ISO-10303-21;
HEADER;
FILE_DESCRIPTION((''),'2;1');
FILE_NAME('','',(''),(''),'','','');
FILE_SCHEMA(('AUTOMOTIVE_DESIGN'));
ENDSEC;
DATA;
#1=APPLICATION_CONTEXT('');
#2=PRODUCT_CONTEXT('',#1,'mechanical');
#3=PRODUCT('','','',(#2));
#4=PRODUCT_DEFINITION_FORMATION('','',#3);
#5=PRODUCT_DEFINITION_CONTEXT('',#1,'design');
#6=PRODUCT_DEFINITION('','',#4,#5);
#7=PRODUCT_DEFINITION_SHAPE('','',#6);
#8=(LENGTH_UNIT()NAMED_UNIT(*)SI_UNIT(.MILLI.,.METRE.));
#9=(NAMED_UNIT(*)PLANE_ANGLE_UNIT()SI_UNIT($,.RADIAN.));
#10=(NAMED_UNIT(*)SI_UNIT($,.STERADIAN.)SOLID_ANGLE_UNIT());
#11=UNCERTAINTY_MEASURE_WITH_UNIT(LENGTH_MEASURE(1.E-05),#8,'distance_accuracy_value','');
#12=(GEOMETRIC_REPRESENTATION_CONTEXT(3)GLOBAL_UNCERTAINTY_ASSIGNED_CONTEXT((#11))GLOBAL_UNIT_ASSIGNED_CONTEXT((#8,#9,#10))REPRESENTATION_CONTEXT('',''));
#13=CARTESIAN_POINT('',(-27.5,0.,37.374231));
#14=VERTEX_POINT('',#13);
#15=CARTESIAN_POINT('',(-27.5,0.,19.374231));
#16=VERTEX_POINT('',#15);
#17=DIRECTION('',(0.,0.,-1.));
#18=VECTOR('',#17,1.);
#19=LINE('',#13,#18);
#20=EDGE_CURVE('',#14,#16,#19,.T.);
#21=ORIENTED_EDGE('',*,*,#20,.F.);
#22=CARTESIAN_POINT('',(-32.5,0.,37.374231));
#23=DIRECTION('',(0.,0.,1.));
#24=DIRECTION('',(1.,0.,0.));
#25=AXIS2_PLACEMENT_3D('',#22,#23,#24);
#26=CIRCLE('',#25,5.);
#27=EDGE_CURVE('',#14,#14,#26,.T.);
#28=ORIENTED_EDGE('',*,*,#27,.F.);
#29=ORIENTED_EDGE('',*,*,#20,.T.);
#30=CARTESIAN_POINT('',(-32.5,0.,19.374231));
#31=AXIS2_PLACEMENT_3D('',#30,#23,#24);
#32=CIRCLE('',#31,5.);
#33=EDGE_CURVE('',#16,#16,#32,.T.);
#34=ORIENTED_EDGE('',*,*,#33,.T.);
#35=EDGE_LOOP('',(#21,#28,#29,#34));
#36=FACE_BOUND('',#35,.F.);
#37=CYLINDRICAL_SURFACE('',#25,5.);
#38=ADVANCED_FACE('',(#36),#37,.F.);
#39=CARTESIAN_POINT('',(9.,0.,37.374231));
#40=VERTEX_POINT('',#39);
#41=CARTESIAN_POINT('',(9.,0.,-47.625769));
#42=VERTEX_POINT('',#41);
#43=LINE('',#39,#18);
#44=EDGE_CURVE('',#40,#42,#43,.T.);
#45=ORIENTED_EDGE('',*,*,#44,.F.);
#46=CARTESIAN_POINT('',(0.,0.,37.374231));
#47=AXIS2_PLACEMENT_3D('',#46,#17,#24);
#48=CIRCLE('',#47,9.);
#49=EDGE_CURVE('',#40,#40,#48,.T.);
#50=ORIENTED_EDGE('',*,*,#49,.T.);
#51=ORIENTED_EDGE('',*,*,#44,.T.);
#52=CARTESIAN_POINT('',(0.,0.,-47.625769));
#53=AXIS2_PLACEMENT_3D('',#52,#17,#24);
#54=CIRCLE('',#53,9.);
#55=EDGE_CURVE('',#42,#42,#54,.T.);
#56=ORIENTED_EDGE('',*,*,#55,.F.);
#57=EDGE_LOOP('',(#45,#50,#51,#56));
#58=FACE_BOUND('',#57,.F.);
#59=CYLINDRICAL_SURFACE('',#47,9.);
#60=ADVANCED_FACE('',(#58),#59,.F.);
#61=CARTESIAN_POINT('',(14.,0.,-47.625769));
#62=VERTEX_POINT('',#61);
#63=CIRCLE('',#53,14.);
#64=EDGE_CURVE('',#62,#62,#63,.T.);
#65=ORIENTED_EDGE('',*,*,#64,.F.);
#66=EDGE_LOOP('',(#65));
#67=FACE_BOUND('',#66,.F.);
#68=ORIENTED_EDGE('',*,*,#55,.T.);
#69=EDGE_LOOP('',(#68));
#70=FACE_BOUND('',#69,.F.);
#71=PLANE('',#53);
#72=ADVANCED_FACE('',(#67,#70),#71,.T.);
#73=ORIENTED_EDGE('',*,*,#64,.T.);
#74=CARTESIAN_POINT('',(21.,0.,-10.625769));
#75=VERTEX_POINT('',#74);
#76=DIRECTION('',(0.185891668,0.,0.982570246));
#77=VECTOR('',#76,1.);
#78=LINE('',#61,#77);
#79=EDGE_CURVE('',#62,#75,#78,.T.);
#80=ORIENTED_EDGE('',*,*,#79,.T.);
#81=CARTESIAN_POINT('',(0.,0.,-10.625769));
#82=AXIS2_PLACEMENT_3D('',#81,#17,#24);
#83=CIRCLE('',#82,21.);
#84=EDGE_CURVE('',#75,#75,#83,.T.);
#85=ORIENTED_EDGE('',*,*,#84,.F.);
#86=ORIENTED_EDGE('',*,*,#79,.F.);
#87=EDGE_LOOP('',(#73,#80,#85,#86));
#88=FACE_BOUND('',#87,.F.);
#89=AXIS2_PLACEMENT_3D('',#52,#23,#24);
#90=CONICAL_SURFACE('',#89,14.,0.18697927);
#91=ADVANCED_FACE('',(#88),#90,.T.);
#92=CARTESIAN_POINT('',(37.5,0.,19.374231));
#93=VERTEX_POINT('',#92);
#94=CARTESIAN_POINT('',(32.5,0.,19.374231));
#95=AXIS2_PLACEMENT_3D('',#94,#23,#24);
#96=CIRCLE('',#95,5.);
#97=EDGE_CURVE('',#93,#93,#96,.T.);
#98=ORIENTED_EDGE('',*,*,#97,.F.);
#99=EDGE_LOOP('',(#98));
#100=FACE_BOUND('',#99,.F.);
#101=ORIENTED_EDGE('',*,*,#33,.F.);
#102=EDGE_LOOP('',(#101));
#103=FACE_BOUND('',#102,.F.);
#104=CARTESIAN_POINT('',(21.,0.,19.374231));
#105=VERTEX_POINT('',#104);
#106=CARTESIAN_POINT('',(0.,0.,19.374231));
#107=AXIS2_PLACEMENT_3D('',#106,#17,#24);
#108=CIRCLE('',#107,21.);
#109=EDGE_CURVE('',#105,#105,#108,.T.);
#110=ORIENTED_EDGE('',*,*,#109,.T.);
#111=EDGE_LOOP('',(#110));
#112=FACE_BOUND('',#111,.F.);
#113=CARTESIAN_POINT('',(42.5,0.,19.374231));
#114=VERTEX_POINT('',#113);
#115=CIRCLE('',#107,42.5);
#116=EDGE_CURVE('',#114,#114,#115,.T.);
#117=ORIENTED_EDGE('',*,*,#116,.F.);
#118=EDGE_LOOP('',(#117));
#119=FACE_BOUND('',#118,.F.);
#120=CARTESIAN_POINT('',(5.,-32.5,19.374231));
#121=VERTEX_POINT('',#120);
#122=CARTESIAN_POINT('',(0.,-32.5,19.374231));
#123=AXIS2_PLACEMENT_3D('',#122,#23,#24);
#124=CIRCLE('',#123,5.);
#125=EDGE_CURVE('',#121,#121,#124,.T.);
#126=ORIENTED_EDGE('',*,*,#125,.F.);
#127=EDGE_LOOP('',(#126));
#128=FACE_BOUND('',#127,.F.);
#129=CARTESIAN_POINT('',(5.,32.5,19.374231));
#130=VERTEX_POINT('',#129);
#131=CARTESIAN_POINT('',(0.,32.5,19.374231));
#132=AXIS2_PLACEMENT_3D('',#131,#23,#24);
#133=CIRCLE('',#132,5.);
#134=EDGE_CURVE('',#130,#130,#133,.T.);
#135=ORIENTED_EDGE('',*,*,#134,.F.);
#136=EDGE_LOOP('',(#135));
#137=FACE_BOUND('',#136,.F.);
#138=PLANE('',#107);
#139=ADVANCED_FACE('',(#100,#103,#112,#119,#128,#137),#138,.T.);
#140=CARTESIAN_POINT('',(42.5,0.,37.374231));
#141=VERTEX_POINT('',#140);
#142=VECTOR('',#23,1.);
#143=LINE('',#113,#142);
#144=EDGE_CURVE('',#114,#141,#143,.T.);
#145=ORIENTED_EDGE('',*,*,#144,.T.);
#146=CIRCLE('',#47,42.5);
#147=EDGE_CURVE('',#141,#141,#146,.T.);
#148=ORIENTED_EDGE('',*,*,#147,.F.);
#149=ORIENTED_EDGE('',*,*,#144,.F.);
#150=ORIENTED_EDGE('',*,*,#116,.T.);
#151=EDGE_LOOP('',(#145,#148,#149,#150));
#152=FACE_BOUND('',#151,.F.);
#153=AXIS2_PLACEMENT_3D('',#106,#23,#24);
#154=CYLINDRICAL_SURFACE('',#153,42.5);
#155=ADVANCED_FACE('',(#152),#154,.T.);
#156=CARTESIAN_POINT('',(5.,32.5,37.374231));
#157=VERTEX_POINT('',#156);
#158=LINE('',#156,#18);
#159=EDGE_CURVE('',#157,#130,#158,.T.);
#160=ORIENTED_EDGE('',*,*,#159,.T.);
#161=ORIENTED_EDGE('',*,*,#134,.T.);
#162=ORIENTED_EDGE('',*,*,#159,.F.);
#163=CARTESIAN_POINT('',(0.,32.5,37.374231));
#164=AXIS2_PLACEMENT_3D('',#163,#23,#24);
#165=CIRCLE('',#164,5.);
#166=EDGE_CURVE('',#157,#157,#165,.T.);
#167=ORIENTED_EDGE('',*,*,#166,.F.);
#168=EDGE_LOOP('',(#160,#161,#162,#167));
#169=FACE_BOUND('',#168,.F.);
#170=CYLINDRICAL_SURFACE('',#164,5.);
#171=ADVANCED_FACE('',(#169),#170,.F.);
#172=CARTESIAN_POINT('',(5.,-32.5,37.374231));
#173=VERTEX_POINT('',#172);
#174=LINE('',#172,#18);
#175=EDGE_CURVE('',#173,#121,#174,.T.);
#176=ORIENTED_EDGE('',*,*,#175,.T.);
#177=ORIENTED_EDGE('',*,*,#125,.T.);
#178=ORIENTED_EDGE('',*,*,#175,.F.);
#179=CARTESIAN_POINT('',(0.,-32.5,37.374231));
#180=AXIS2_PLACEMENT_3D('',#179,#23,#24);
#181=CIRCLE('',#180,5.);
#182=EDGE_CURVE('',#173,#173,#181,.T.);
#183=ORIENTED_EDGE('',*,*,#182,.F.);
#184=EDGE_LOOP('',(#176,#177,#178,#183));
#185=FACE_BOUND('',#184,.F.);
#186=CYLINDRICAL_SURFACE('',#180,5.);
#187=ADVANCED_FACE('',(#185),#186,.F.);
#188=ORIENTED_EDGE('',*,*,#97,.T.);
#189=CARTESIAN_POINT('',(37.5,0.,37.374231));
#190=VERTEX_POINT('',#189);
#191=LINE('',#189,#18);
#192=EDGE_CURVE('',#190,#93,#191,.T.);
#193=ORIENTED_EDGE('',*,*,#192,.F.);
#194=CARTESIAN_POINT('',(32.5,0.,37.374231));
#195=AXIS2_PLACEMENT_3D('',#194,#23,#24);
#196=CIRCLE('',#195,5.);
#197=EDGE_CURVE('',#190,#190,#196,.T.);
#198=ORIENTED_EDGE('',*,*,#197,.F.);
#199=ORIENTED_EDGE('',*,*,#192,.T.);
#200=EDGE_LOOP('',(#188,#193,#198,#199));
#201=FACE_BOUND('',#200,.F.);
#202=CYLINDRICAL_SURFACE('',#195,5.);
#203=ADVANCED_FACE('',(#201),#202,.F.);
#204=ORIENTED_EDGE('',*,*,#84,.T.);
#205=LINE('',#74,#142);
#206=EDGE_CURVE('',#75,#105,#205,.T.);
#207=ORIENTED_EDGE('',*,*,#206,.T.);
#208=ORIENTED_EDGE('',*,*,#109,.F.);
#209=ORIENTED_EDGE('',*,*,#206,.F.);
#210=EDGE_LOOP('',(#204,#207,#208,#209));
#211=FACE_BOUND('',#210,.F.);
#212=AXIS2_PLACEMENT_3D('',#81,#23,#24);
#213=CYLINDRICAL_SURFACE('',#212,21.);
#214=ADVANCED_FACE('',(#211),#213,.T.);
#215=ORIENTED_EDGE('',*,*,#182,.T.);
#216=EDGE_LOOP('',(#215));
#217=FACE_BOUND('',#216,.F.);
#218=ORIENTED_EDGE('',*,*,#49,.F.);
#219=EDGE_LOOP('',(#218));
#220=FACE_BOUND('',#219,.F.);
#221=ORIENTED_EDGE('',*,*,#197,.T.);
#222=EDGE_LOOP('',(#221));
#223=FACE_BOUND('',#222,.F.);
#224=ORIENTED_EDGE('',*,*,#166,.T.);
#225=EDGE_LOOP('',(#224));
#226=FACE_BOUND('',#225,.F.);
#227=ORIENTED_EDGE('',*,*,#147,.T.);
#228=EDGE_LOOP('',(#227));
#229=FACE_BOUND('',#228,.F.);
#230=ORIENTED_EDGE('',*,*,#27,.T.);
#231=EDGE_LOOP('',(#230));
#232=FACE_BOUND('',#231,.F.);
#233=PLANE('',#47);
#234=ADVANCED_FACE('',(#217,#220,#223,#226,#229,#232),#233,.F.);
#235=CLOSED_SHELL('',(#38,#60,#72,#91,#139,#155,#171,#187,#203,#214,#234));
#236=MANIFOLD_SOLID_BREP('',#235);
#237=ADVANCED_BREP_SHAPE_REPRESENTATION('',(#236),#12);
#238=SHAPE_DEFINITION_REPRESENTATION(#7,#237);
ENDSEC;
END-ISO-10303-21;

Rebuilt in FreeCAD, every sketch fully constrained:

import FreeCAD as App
import Part
import Sketcher


def add_polygon(sketch, points):
    """Adds a closed chain of lines whose ends are joined by coincident constraints."""
    first, n = sketch.GeometryCount, len(points)
    for a, b in zip(points, points[1:] + points[:1]):
        sketch.addGeometry(Part.LineSegment(App.Vector(*a, 0), App.Vector(*b, 0)), False)
    for i in range(n):
        sketch.addConstraint(Sketcher.Constraint("Coincident", first + i, 2, first + (i + 1) % n, 1))

doc = App.newDocument("Part")
body = doc.addObject("PartDesign::Body", "Body")

# Sketch on XZ plane
sketch1 = body.newObject("Sketcher::SketchObject", "Sketch")
sketch1.AttachmentSupport = (doc.getObject("XZ_Plane"), [""])
sketch1.MapMode = "FlatFace"
add_polygon(sketch1, [(42, 37), (9, 37), (9, -48), (14, -48), (21, -11), (21, 19), (42, 19)])  # lines 0-6
sketch1.addConstraint([
    Sketcher.Constraint("Horizontal", 0),
    Sketcher.Constraint("Vertical", 1),
    Sketcher.Constraint("Horizontal", 2),
    Sketcher.Constraint("Vertical", 4),
    Sketcher.Constraint("Horizontal", 5),
    Sketcher.Constraint("Vertical", 6),
    Sketcher.Constraint("DistanceX", 2, 1, 2, 2, 5.0),
    Sketcher.Constraint("DistanceY", 1, 2, 1, 1, 85.0),
    Sketcher.Constraint("DistanceY", 4, 1, 4, 2, 30.0),
    Sketcher.Constraint("DistanceY", 6, 1, 6, 2, 18.0),
    Sketcher.Constraint("DistanceX", 0, 2, 0, 1, 33.5),
    Sketcher.Constraint("DistanceX", 5, 1, 5, 2, 21.5),
    Sketcher.Constraint("DistanceX", -1, 1, 0, 2, 9.0),
    Sketcher.Constraint("DistanceY", -1, 1, 0, 2, 37.374231),
])
revolution = body.newObject("PartDesign::Revolution", "Revolution")
revolution.Profile = sketch1
revolution.ReferenceAxis = (sketch1, ["V_Axis"])
revolution.Angle = 360

# Sketch on XY plane
sketch2 = body.newObject("Sketcher::SketchObject", "Sketch001")
sketch2.AttachmentSupport = (doc.getObject("XY_Plane"), [""])
sketch2.MapMode = "FlatFace"
sketch2.AttachmentOffset = App.Placement(App.Vector(0, 0, 37.374231), App.Rotation())
sketch2.addGeometry([
    Part.Circle(App.Vector(32, 0, 0), App.Vector(0, 0, 1), 5),
    Part.Circle(App.Vector(0, 32, 0), App.Vector(0, 0, 1), 5),
    Part.Circle(App.Vector(-32, 0, 0), App.Vector(0, 0, 1), 5),
    Part.Circle(App.Vector(0, -32, 0), App.Vector(0, 0, 1), 5),
], False)
sketch2.addConstraint([
    Sketcher.Constraint("Equal", 0, 1),
    Sketcher.Constraint("Equal", 1, 2),
    Sketcher.Constraint("Equal", 2, 3),
    Sketcher.Constraint("Symmetric", 0, 3, 2, 3, -1, 1),
    Sketcher.Constraint("Symmetric", 1, 3, 3, 3, -1, 1),
    Sketcher.Constraint("PointOnObject", 0, 3, -1),
    Sketcher.Constraint("PointOnObject", 1, 3, -2),
    Sketcher.Constraint("Diameter", 0, 10.0),
    Sketcher.Constraint("DistanceX", 2, 3, 0, 3, 65.0),
    Sketcher.Constraint("DistanceY", 3, 3, 1, 3, 65.0),
])
pocket1 = body.newObject("PartDesign::Pocket", "Pocket")
pocket1.Profile = sketch2
pocket1.Type = "ThroughAll"

doc.recompute()
